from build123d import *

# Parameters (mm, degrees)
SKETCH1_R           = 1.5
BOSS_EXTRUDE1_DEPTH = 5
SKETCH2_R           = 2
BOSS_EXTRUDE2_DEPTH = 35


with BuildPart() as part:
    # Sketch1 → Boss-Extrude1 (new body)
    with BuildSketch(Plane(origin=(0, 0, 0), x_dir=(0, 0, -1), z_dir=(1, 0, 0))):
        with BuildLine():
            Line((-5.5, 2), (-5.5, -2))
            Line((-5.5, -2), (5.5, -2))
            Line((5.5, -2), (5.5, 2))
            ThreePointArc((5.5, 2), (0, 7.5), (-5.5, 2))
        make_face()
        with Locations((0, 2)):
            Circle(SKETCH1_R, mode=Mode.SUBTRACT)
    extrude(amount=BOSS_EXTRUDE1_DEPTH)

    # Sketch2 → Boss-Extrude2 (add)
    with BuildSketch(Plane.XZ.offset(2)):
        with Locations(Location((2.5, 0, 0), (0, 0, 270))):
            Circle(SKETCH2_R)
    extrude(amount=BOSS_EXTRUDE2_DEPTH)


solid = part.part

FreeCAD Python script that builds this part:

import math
import FreeCAD as App
import Part
import Sketcher
from FreeCAD import Vector
Q = App.Units.Quantity

doc = App.newDocument("Part")
body = doc.addObject("PartDesign::Body", "Body")

# Sketch on YZ plane
sketch1 = body.newObject("Sketcher::SketchObject", "Sketch")
sketch1.AttachmentSupport = (doc.getObject("YZ_Plane"), [""])
sketch1.MapMode = "FlatFace"
sketch1.addGeometry([
    Part.LineSegment(Vector(2, 5.5, 0), Vector(-2, 5.5, 0)),  # 0
    Part.LineSegment(Vector(-2, 5.5, 0), Vector(-2, -5.5, 0)),  # 1
    Part.LineSegment(Vector(-2, -5.5, 0), Vector(2, -5.5, 0)),  # 2
    Part.ArcOfCircle(Part.Circle(Vector(2, 0, 0), Vector(0, 0, 1), 5.5), math.radians(-90), math.radians(90)),  # 3
    Part.Circle(Vector(2, 0, 0), Vector(0, 0, 1), 1.5),  # 4
], False)
sketch1.addConstraint([
    Sketcher.Constraint("Coincident", 0, 2, 1, 1),
    Sketcher.Constraint("Coincident", 1, 2, 2, 1),
    Sketcher.Constraint("Tangent", 2, 2, 3, 1),
    Sketcher.Constraint("Tangent", 3, 2, 0, 1),
    Sketcher.Constraint("Horizontal", 0),
    Sketcher.Constraint("Vertical", 1),
    Sketcher.Constraint("Horizontal", 2),
    Sketcher.Constraint("Coincident", 4, 3, 3, 3),
    Sketcher.Constraint("Symmetric", 0, 2, 2, 2, -1, 1),
    Sketcher.Constraint("Diameter", 4, Q("3 mm")),
    Sketcher.Constraint("Radius", 3, Q("5.5 mm")),
    Sketcher.Constraint("DistanceX", 0, 2, 0, 1, Q("4 mm")),
])
pad1 = body.newObject("PartDesign::Pad", "Pad")
pad1.Profile = sketch1
pad1.Length = 5

# Sketch on XZ plane
sketch2 = body.newObject("Sketcher::SketchObject", "Sketch001")
sketch2.AttachmentSupport = (doc.getObject("XZ_Plane"), [""])
sketch2.MapMode = "FlatFace"
sketch2.AttachmentOffset = App.Placement(Vector(0, 0, 2), App.Rotation())
sketch2.addGeometry(Part.Circle(Vector(2.5, 0, 0), Vector(0, 0, 1), 2), False)
sketch2.addConstraint([
    Sketcher.Constraint("PointOnObject", 0, 3, -1),
    Sketcher.Constraint("Diameter", 0, Q("4 mm")),
    Sketcher.Constraint("DistanceX", -1, 1, 0, 3, Q("2.5 mm")),
])
pad2 = body.newObject("PartDesign::Pad", "Pad001")
pad2.Profile = sketch2
pad2.Length = 35

doc.recompute()
